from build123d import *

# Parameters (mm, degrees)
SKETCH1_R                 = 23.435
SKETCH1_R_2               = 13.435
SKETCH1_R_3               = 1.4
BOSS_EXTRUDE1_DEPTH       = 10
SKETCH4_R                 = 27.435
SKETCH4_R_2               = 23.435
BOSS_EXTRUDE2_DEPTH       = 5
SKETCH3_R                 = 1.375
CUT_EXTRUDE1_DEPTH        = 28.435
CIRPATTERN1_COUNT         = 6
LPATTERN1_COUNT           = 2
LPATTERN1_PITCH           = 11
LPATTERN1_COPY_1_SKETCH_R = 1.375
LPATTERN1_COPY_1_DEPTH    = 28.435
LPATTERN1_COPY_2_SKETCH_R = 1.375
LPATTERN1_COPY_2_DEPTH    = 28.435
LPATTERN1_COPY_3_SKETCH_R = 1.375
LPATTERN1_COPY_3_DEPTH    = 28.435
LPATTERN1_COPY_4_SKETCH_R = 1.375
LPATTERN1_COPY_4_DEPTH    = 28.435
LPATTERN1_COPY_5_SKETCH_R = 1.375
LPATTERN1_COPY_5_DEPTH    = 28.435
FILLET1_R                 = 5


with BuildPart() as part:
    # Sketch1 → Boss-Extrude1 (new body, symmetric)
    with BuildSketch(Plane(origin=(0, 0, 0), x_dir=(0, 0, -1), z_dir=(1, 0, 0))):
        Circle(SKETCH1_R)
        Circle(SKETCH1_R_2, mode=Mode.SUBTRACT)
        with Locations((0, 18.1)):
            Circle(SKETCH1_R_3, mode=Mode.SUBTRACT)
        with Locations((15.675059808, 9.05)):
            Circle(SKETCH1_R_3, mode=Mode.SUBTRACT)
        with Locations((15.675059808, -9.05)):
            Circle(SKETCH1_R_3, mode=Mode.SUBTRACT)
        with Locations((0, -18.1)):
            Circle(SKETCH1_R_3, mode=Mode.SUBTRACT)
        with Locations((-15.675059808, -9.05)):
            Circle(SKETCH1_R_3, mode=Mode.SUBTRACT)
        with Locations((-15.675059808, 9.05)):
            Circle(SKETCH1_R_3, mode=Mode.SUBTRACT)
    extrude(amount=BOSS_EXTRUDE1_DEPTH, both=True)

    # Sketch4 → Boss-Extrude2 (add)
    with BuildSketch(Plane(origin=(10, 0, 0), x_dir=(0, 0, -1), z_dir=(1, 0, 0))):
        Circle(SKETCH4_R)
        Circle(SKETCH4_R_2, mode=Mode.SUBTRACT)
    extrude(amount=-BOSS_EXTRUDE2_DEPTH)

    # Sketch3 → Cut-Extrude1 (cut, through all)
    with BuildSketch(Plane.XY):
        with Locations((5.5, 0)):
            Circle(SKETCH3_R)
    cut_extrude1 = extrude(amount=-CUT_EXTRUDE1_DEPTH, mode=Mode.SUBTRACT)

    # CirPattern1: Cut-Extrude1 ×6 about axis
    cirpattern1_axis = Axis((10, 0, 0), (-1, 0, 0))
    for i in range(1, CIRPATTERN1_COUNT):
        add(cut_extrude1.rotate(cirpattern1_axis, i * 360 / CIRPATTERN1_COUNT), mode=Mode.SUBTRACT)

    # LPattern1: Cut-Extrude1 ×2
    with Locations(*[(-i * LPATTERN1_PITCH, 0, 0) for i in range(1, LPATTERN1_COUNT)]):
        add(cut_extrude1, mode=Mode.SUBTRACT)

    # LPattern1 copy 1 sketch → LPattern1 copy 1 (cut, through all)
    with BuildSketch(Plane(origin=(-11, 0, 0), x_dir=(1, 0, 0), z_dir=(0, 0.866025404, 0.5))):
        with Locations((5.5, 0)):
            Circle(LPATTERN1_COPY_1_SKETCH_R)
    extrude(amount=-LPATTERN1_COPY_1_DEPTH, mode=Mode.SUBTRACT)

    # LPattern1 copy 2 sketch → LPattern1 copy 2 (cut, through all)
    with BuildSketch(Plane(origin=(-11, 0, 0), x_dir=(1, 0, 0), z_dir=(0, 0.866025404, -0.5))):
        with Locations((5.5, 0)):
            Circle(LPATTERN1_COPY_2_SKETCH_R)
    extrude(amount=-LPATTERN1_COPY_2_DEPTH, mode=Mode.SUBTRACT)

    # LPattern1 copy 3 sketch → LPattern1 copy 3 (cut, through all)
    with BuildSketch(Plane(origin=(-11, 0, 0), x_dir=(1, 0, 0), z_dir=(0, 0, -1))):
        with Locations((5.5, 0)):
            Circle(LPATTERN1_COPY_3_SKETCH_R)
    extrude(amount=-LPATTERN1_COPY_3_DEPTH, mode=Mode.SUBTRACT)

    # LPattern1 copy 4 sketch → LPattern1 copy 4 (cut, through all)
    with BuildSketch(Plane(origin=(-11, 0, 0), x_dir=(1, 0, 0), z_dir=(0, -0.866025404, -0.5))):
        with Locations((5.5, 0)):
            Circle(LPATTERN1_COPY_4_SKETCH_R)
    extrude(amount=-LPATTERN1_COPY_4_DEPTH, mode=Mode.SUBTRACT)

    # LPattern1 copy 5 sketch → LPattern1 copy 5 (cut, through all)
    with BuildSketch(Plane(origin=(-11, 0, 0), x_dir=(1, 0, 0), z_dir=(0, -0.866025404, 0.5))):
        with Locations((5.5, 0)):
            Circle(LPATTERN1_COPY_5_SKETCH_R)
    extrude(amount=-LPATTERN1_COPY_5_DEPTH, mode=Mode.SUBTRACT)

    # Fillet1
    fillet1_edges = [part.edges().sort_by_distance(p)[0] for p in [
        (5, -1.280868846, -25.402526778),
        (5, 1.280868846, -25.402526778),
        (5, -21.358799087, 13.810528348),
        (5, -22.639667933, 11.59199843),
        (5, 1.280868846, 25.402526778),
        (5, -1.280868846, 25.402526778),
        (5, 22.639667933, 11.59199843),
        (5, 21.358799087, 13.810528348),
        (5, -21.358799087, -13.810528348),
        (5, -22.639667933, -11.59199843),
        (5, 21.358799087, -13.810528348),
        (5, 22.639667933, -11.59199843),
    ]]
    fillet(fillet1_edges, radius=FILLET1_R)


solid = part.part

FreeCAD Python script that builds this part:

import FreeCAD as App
import Part
import Sketcher


def edges_at(feature, points):
    """Names of the edges that pass closest to the given points."""
    edges = feature.Shape.Edges
    near = lambda p: min(range(len(edges)), key=lambda i: edges[i].distToShape(Part.Vertex(*p))[0])
    return sorted({f"Edge{near(p) + 1}" for p in points})

doc = App.newDocument("Part")
params = doc.addObject("Spreadsheet::Sheet", "Params")
for row, (alias, value) in enumerate([
    ("sketch1_diameter", "2.8 mm"),
    ("sketch1_diameter2", "46.87 mm"),
    ("sketch1_diameter3", "26.87 mm"),
    ("pad1_length", "20 mm"),
    ("sketch2_diameter", "54.87 mm"),
    ("sketch2_diameter2", "46.87 mm"),
    ("pad2_length", "5 mm"),
    ("sketch3_diameter", "2.75 mm"),
    ("linearpattern_pitch", "11 mm"),
    ("sketch4_diameter", "2.75 mm"),
    ("sketch5_diameter", "2.75 mm"),
    ("sketch6_diameter", "2.75 mm"),
    ("sketch7_diameter", "2.75 mm"),
    ("sketch8_diameter", "2.75 mm"),
    ("fillet_radius", "5 mm"),
], start=1):
    params.set(f"A{row}", alias)
    params.set(f"B{row}", "=" + value)
    params.setAlias(f"B{row}", alias)

body = doc.addObject("PartDesign::Body", "Body")

sketch1 = doc.addObject("Sketcher::SketchObject", "Sketch")
body.addObject(sketch1)
sketch1.AttachmentSupport = (doc.YZ_Plane, [""])
sketch1.MapMode = "FlatFace"
sketch1.addGeometry(Part.Circle(App.Vector(0, 0, 0), App.Vector(0, 0, 1), 23.4), False)
sketch1.addGeometry(Part.Circle(App.Vector(-9.1, 15.7, 0), App.Vector(0, 0, 1), 1.4), False)
sketch1.addGeometry(Part.Circle(App.Vector(-18.1, 0, 0), App.Vector(0, 0, 1), 1.4), False)
sketch1.addGeometry(Part.Circle(App.Vector(-9.1, -15.7, 0), App.Vector(0, 0, 1), 1.4), False)
sketch1.addGeometry(Part.Circle(App.Vector(9.1, 15.7, 0), App.Vector(0, 0, 1), 1.4), False)
sketch1.addGeometry(Part.Circle(App.Vector(0, 0, 0), App.Vector(0, 0, 1), 13.4), False)
sketch1.addGeometry(Part.Circle(App.Vector(9.1, -15.7, 0), App.Vector(0, 0, 1), 1.4), False)
sketch1.addGeometry(Part.Circle(App.Vector(18.1, 0, 0), App.Vector(0, 0, 1), 1.4), False)
sketch1.addConstraint(Sketcher.Constraint("Coincident", 0, 3, -1, 1))
sketch1.addConstraint(Sketcher.Constraint("Coincident", 5, 3, -1, 1))
sketch1.addConstraint(Sketcher.Constraint("Equal", 1, 2))
sketch1.addConstraint(Sketcher.Constraint("Equal", 2, 3))
sketch1.addConstraint(Sketcher.Constraint("Equal", 3, 4))
sketch1.addConstraint(Sketcher.Constraint("Equal", 4, 6))
sketch1.addConstraint(Sketcher.Constraint("Equal", 6, 7))
sketch1.addConstraint(Sketcher.Constraint("Symmetric", 3, 3, 4, 3, -1, 1))
sketch1.addConstraint(Sketcher.Constraint("Symmetric", 1, 3, 6, 3, -1, 1))
sketch1.addConstraint(Sketcher.Constraint("Symmetric", 2, 3, 7, 3, -1, 1))
sketch1.addConstraint(Sketcher.Constraint("Symmetric", 1, 3, 4, 3, -2))
sketch1.addConstraint(Sketcher.Constraint("PointOnObject", 2, 3, -1))
sketch1.addConstraint(Sketcher.Constraint("Diameter", 1, 2.8))
sketch1.addConstraint(Sketcher.Constraint("Diameter", 0, 46.87))
sketch1.addConstraint(Sketcher.Constraint("Diameter", 5, 26.87))
sketch1.addConstraint(Sketcher.Constraint("DistanceX", 2, 3, -1, 1, 18.1))
sketch1.addConstraint(Sketcher.Constraint("DistanceX", 1, 3, 4, 3, 18.1))
sketch1.addConstraint(Sketcher.Constraint("DistanceY", -1, 1, 1, 3, 15.67506))
sketch1.setExpression("Constraints[12]", "Params.sketch1_diameter")
sketch1.setExpression("Constraints[13]", "Params.sketch1_diameter2")
sketch1.setExpression("Constraints[14]", "Params.sketch1_diameter3")
pad1 = doc.addObject("PartDesign::Pad", "Pad")
body.addObject(pad1)
pad1.Profile = sketch1
pad1.setExpression("Length", "Params.pad1_length")
pad1.Midplane = True

sketch2 = doc.addObject("Sketcher::SketchObject", "Sketch001")
body.addObject(sketch2)
sketch2.AttachmentSupport = (doc.YZ_Plane, [""])
sketch2.MapMode = "FlatFace"
sketch2.AttachmentOffset = App.Placement(App.Vector(0, 0, 10), App.Rotation())
sketch2.addGeometry(Part.Circle(App.Vector(0, 0, 0), App.Vector(0, 0, 1), 27), False)
sketch2.addGeometry(Part.Circle(App.Vector(0, 0, 0), App.Vector(0, 0, 1), 23), False)
sketch2.addConstraint(Sketcher.Constraint("Coincident", 0, 3, -1, 1))
sketch2.addConstraint(Sketcher.Constraint("Coincident", 1, 3, -1, 1))
sketch2.addConstraint(Sketcher.Constraint("Diameter", 0, 54.87))
sketch2.addConstraint(Sketcher.Constraint("Diameter", 1, 46.87))
sketch2.setExpression("Constraints[2]", "Params.sketch2_diameter")
sketch2.setExpression("Constraints[3]", "Params.sketch2_diameter2")
pad2 = doc.addObject("PartDesign::Pad", "Pad001")
body.addObject(pad2)
pad2.Profile = sketch2
pad2.setExpression("Length", "Params.pad2_length")
pad2.Reversed = True

sketch3 = doc.addObject("Sketcher::SketchObject", "Sketch002")
body.addObject(sketch3)
sketch3.AttachmentSupport = (doc.XY_Plane, [""])
sketch3.MapMode = "FlatFace"
sketch3.addGeometry(Part.Circle(App.Vector(5.5, 0, 0), App.Vector(0, 0, 1), 1.4), False)
sketch3.addConstraint(Sketcher.Constraint("PointOnObject", 0, 3, -1))
sketch3.addConstraint(Sketcher.Constraint("Diameter", 0, 2.75))
sketch3.addConstraint(Sketcher.Constraint("DistanceX", -1, 1, 0, 3, 5.5))
sketch3.setExpression("Constraints[1]", "Params.sketch3_diameter")
pocket1 = doc.addObject("PartDesign::Pocket", "Pocket")
body.addObject(pocket1)
pocket1.Profile = sketch3
pocket1.Type = "ThroughAll"
doc.recompute()

polarpattern = doc.addObject("PartDesign::PolarPattern", "PolarPattern")
body.addObject(polarpattern)
polarpattern.Originals = [pocket1]
polarpattern.Axis = (doc.X_Axis, [""])
polarpattern.Angle = 360
polarpattern.Occurrences = 6
body.Tip = polarpattern
doc.recompute()

linearpattern = doc.addObject("PartDesign::LinearPattern", "LinearPattern")
body.addObject(linearpattern)
linearpattern.Originals = [pocket1]
linearpattern.Direction = (doc.X_Axis, [""])
linearpattern.Mode = "offset"
linearpattern.setExpression("Offset", "Params.linearpattern_pitch")
linearpattern.Occurrences = 2
linearpattern.Reversed = True
body.Tip = linearpattern

sketch4 = doc.addObject("Sketcher::SketchObject", "Sketch003")
body.addObject(sketch4)
sketch4.Placement = App.Placement(App.Vector(-11, 0, 0), App.Rotation(App.Vector(1, 0, 0), App.Vector(0, 0.5, -0.866025404), App.Vector(0, 0.866025404, 0.5), "ZXY"))
sketch4.addGeometry(Part.Circle(App.Vector(5.5, 0, 0), App.Vector(0, 0, 1), 1.4), False)
sketch4.addConstraint(Sketcher.Constraint("PointOnObject", 0, 3, -1))
sketch4.addConstraint(Sketcher.Constraint("Diameter", 0, 2.75))
sketch4.addConstraint(Sketcher.Constraint("DistanceX", -1, 1, 0, 3, 5.5))
sketch4.setExpression("Constraints[1]", "Params.sketch4_diameter")
pocket2 = doc.addObject("PartDesign::Pocket", "Pocket001")
body.addObject(pocket2)
pocket2.Profile = sketch4
pocket2.Type = "ThroughAll"

sketch5 = doc.addObject("Sketcher::SketchObject", "Sketch004")
body.addObject(sketch5)
sketch5.Placement = App.Placement(App.Vector(-11, 0, 0), App.Rotation(App.Vector(1, 0, 0), App.Vector(0, -0.5, -0.866025404), App.Vector(0, 0.866025404, -0.5), "ZXY"))
sketch5.addGeometry(Part.Circle(App.Vector(5.5, 0, 0), App.Vector(0, 0, 1), 1.4), False)
sketch5.addConstraint(Sketcher.Constraint("PointOnObject", 0, 3, -1))
sketch5.addConstraint(Sketcher.Constraint("Diameter", 0, 2.75))
sketch5.addConstraint(Sketcher.Constraint("DistanceX", -1, 1, 0, 3, 5.5))
sketch5.setExpression("Constraints[1]", "Params.sketch5_diameter")
pocket3 = doc.addObject("PartDesign::Pocket", "Pocket002")
body.addObject(pocket3)
pocket3.Profile = sketch5
pocket3.Type = "ThroughAll"

sketch6 = doc.addObject("Sketcher::SketchObject", "Sketch005")
body.addObject(sketch6)
sketch6.AttachmentSupport = (doc.XY_Plane, [""])
sketch6.MapMode = "FlatFace"
sketch6.addGeometry(Part.Circle(App.Vector(-5.5, 0, 0), App.Vector(0, 0, 1), 1.4), False)
sketch6.addConstraint(Sketcher.Constraint("PointOnObject", 0, 3, -1))
sketch6.addConstraint(Sketcher.Constraint("Diameter", 0, 2.75))
sketch6.addConstraint(Sketcher.Constraint("DistanceX", 0, 3, -1, 1, 5.5))
sketch6.setExpression("Constraints[1]", "Params.sketch6_diameter")
pocket4 = doc.addObject("PartDesign::Pocket", "Pocket003")
body.addObject(pocket4)
pocket4.Profile = sketch6
pocket4.Type = "ThroughAll"
pocket4.Reversed = True

sketch7 = doc.addObject("Sketcher::SketchObject", "Sketch006")
body.addObject(sketch7)
sketch7.Placement = App.Placement(App.Vector(-11, 0, 0), App.Rotation(App.Vector(1, 0, 0), App.Vector(0, -0.5, 0.866025404), App.Vector(0, -0.866025404, -0.5), "ZXY"))
sketch7.addGeometry(Part.Circle(App.Vector(5.5, 0, 0), App.Vector(0, 0, 1), 1.4), False)
sketch7.addConstraint(Sketcher.Constraint("PointOnObject", 0, 3, -1))
sketch7.addConstraint(Sketcher.Constraint("Diameter", 0, 2.75))
sketch7.addConstraint(Sketcher.Constraint("DistanceX", -1, 1, 0, 3, 5.5))
sketch7.setExpression("Constraints[1]", "Params.sketch7_diameter")
pocket5 = doc.addObject("PartDesign::Pocket", "Pocket004")
body.addObject(pocket5)
pocket5.Profile = sketch7
pocket5.Type = "ThroughAll"

sketch8 = doc.addObject("Sketcher::SketchObject", "Sketch007")
body.addObject(sketch8)
sketch8.Placement = App.Placement(App.Vector(-11, 0, 0), App.Rotation(App.Vector(1, 0, 0), App.Vector(0, 0.5, 0.866025404), App.Vector(0, -0.866025404, 0.5), "ZXY"))
sketch8.addGeometry(Part.Circle(App.Vector(5.5, 0, 0), App.Vector(0, 0, 1), 1.4), False)
sketch8.addConstraint(Sketcher.Constraint("PointOnObject", 0, 3, -1))
sketch8.addConstraint(Sketcher.Constraint("Diameter", 0, 2.75))
sketch8.addConstraint(Sketcher.Constraint("DistanceX", -1, 1, 0, 3, 5.5))
sketch8.setExpression("Constraints[1]", "Params.sketch8_diameter")
pocket6 = doc.addObject("PartDesign::Pocket", "Pocket005")
body.addObject(pocket6)
pocket6.Profile = sketch8
pocket6.Type = "ThroughAll"
doc.recompute()

fillet = doc.addObject("PartDesign::Fillet", "Fillet")
body.addObject(fillet)
fillet.Base = (pocket6, edges_at(pocket6, [
    (5, -1.281, -25.403),
    (5, 1.281, -25.403),
    (5, -21.359, 13.811),
    (5, -22.64, 11.592),
    (5, 1.281, 25.403),
    (5, -1.281, 25.403),
    (5, 22.64, 11.592),
    (5, 21.359, 13.811),
    (5, -21.359, -13.811),
    (5, -22.64, -11.592),
    (5, 21.359, -13.811),
    (5, 22.64, -11.592),
]))
fillet.setExpression("Radius", "Params.fillet_radius")

doc.recompute()
